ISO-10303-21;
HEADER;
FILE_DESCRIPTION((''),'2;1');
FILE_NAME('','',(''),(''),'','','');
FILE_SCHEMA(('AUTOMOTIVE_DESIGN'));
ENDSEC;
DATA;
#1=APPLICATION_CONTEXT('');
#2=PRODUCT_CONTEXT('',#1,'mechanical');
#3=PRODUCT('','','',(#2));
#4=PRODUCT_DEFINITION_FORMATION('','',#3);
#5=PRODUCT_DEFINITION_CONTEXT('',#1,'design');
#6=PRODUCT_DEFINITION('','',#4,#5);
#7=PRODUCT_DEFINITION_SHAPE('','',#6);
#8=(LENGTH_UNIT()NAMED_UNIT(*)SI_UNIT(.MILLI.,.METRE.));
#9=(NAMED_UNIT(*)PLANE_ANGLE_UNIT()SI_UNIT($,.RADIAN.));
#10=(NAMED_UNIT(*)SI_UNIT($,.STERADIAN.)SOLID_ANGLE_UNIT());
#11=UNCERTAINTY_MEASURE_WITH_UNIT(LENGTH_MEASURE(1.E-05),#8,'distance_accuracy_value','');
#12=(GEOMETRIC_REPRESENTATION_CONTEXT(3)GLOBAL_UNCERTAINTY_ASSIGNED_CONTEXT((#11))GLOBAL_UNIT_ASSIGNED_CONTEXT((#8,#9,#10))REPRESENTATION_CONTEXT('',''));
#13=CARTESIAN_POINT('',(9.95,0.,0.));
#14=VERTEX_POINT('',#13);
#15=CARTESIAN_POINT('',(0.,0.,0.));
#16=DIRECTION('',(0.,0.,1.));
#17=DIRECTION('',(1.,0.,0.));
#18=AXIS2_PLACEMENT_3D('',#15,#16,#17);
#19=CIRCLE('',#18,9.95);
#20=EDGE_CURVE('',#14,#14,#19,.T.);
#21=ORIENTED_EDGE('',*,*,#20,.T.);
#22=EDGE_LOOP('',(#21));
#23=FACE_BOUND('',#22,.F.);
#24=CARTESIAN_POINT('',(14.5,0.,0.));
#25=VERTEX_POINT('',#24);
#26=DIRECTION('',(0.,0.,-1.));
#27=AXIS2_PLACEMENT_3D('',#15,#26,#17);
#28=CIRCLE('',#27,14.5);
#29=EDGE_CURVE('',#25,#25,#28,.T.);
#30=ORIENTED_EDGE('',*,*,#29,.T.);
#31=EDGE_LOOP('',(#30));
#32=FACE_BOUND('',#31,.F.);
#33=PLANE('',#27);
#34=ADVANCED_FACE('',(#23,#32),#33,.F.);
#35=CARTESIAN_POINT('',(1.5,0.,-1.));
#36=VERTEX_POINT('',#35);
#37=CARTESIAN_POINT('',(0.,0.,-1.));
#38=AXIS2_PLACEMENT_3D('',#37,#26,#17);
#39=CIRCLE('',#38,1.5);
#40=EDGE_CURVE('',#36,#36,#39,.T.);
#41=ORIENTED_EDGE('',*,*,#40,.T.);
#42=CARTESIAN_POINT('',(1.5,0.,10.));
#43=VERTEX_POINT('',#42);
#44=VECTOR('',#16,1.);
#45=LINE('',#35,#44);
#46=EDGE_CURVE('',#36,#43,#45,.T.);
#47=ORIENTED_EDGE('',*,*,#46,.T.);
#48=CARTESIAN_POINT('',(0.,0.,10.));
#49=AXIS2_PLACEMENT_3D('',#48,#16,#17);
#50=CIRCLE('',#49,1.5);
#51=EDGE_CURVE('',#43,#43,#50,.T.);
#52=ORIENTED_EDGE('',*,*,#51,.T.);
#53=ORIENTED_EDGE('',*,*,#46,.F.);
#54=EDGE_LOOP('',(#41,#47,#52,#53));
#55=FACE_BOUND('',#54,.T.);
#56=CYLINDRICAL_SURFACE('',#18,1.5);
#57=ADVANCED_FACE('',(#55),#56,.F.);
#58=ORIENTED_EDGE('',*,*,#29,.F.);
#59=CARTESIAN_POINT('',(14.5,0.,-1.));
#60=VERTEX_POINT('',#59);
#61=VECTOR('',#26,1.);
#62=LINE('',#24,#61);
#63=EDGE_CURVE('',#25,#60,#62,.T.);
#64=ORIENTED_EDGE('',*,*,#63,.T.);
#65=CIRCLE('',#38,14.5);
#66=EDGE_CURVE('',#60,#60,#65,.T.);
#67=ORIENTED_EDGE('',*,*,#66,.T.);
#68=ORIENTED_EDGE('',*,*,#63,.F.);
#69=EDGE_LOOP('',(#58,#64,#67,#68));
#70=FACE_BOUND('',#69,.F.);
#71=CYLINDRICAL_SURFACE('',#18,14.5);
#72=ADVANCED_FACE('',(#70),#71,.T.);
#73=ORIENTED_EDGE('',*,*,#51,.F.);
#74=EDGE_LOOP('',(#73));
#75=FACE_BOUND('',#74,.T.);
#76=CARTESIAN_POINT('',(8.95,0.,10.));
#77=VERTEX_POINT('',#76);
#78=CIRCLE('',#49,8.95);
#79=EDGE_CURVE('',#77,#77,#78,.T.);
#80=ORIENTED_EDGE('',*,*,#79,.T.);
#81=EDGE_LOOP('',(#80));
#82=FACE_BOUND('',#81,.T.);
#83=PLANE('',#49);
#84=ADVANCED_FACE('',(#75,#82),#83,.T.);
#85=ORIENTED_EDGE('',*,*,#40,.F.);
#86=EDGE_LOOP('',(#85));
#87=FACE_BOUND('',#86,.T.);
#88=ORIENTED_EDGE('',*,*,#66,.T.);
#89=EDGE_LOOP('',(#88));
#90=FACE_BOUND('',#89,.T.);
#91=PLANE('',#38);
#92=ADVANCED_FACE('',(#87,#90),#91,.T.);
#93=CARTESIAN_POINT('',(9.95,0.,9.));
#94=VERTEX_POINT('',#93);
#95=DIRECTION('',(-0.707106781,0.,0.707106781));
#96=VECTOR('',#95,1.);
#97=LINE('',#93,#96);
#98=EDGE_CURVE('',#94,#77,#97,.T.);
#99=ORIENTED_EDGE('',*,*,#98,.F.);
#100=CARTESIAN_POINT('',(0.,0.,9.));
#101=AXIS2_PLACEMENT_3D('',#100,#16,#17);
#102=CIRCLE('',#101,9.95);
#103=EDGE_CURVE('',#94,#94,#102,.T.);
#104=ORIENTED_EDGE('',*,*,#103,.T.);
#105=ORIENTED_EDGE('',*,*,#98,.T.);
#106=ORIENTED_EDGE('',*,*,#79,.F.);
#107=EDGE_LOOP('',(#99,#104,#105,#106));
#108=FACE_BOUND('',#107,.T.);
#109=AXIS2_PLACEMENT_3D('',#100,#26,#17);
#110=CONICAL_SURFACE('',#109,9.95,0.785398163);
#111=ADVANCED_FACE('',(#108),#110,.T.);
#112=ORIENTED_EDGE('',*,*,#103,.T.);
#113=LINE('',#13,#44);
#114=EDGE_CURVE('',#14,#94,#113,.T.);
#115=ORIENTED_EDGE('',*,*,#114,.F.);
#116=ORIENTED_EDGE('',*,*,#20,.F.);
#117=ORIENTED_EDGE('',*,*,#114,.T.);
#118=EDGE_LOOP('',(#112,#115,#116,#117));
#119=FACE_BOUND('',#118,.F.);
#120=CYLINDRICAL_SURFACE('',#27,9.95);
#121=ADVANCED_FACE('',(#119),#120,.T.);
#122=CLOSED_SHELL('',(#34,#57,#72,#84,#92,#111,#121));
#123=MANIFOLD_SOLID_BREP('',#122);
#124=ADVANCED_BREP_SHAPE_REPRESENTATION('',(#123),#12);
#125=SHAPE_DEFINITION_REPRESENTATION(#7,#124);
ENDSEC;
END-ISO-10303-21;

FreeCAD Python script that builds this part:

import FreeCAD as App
import Part
import Sketcher

V = App.Vector


def edges_at(feature, points):
    """Names of the edges that pass closest to the given points."""
    edges = feature.Shape.Edges
    near = lambda p: min(range(len(edges)), key=lambda i: edges[i].distToShape(Part.Vertex(*p))[0])
    return sorted({f"Edge{near(p) + 1}" for p in points})

doc = App.newDocument("Part")
body = doc.addObject("PartDesign::Body", "Body")

sketch1 = body.newObject("Sketcher::SketchObject", "Sketch")
sketch1.AttachmentSupport = (doc.getObject("XY_Plane"), [""])
sketch1.MapMode = "FlatFace"
sketch1.addGeometry([
    Part.Circle(V(0, 0, 0), V(0, 0, 1), 9.95),
    Part.Circle(V(0, 0, 0), V(0, 0, 1), 1.5),
], False)
sketch1.addConstraint([
    Sketcher.Constraint("Coincident", 0, 3, -1, 1),
    Sketcher.Constraint("Coincident", 1, 3, -1, 1),
    Sketcher.Constraint("Diameter", 1, 3.0),
    Sketcher.Constraint("Diameter", 0, 19.9),
])
pad1 = body.newObject("PartDesign::Pad", "Pad")
pad1.Profile = sketch1
pad1.Length = 10
doc.recompute()

chamfer = body.newObject("PartDesign::Chamfer", "Chamfer")
chamfer.Base = (pad1, edges_at(pad1, [(-9.95, 0, 10)]))
chamfer.Size = 1

sketch2 = body.newObject("Sketcher::SketchObject", "Sketch001")
sketch2.AttachmentSupport = (doc.getObject("XY_Plane"), [""])
sketch2.MapMode = "FlatFace"
sketch2.addGeometry([
    Part.Circle(V(0, 0, 0), V(0, 0, 1), 14.5),
    Part.Circle(V(0, 0, 0), V(0, 0, 1), 1.5),
], False)
sketch2.addConstraint([
    Sketcher.Constraint("Coincident", 0, 3, -1, 1),
    Sketcher.Constraint("Coincident", 1, 3, -1, 1),
    Sketcher.Constraint("Diameter", 0, 29.0),
    Sketcher.Constraint("Diameter", 1, 3.0),
])
pad2 = body.newObject("PartDesign::Pad", "Pad001")
pad2.Profile = sketch2
pad2.Length = 1
pad2.Reversed = True

doc.recompute()
